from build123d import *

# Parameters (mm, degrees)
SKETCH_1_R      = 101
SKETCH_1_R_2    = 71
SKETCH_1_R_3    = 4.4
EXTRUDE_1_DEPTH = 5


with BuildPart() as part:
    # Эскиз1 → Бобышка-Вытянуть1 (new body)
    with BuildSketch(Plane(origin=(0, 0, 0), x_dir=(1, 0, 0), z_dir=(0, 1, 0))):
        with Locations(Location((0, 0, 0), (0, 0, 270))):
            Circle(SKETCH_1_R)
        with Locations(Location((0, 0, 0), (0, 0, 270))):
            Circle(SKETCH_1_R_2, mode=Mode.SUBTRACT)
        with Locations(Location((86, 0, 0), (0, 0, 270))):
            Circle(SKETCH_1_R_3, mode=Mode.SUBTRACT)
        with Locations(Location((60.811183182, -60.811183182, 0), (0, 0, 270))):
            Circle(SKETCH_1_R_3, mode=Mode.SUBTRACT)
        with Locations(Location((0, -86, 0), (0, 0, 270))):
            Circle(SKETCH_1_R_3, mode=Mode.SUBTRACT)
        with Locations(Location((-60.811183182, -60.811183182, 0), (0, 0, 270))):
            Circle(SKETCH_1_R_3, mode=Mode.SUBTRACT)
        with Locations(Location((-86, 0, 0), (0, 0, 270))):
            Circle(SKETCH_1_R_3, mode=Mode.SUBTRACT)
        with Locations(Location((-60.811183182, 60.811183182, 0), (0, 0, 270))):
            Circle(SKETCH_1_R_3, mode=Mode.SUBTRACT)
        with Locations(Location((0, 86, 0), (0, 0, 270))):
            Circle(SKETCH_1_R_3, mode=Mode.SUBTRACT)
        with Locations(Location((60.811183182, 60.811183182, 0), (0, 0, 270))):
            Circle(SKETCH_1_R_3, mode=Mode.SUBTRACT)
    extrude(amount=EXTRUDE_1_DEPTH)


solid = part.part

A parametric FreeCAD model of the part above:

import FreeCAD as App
import Part
import Sketcher
from FreeCAD import Vector
Q = App.Units.Quantity

doc = App.newDocument("Part")
body = doc.addObject("PartDesign::Body", "Body")

# Sketch on XZ plane
sketch1 = body.newObject("Sketcher::SketchObject", "Sketch")
sketch1.AttachmentSupport = (doc.getObject("XZ_Plane"), [""])
sketch1.MapMode = "FlatFace"
sketch1.addGeometry(Part.Circle(Vector(0, 0, 0), Vector(0, 0, 1), 101), False)
sketch1.addGeometry(Part.Circle(Vector(-60.811183, -60.811183, 0), Vector(0, 0, 1), 4.4), False)
sketch1.addGeometry(Part.Circle(Vector(0, -86, 0), Vector(0, 0, 1), 4.4), False)
sketch1.addGeometry(Part.Circle(Vector(-86, 0, 0), Vector(0, 0, 1), 4.4), False)
sketch1.addGeometry(Part.Circle(Vector(-60.811183, 60.811183, 0), Vector(0, 0, 1), 4.4), False)
sketch1.addGeometry(Part.Circle(Vector(60.811183, -60.811183, 0), Vector(0, 0, 1), 4.4), False)
sketch1.addGeometry(Part.Circle(Vector(86, 0, 0), Vector(0, 0, 1), 4.4), False)
sketch1.addGeometry(Part.Circle(Vector(0, 0, 0), Vector(0, 0, 1), 71), False)
sketch1.addGeometry(Part.Circle(Vector(0, 86, 0), Vector(0, 0, 1), 4.4), False)
sketch1.addGeometry(Part.Circle(Vector(60.811183, 60.811183, 0), Vector(0, 0, 1), 4.4), False)
sketch1.addConstraint(Sketcher.Constraint("Coincident", 0, 3, -1, 1))
sketch1.addConstraint(Sketcher.Constraint("Coincident", 7, 3, -1, 1))
sketch1.addConstraint(Sketcher.Constraint("Equal", 1, 2))
sketch1.addConstraint(Sketcher.Constraint("Equal", 2, 3))
sketch1.addConstraint(Sketcher.Constraint("Equal", 3, 4))
sketch1.addConstraint(Sketcher.Constraint("Equal", 4, 5))
sketch1.addConstraint(Sketcher.Constraint("Equal", 5, 6))
sketch1.addConstraint(Sketcher.Constraint("Equal", 6, 8))
sketch1.addConstraint(Sketcher.Constraint("Equal", 8, 9))
sketch1.addConstraint(Sketcher.Constraint("Symmetric", 4, 3, 5, 3, -1, 1))
sketch1.addConstraint(Sketcher.Constraint("Symmetric", 3, 3, 6, 3, -1, 1))
sketch1.addConstraint(Sketcher.Constraint("Symmetric", 2, 3, 8, 3, -1, 1))
sketch1.addConstraint(Sketcher.Constraint("Symmetric", 1, 3, 9, 3, -1, 1))
sketch1.addConstraint(Sketcher.Constraint("Symmetric", 1, 3, 5, 3, -2))
sketch1.addConstraint(Sketcher.Constraint("PointOnObject", 2, 3, -2))
sketch1.addConstraint(Sketcher.Constraint("PointOnObject", 3, 3, -1))
sketch1.addConstraint(Sketcher.Constraint("Diameter", 0, Q("202 mm")))
sketch1.addConstraint(Sketcher.Constraint("Diameter", 7, Q("142 mm")))
sketch1.addConstraint(Sketcher.Constraint("Diameter", 1, Q("8.8 mm")))
sketch1.addConstraint(Sketcher.Constraint("DistanceY", 2, 3, -1, 1, Q("86 mm")))
sketch1.addConstraint(Sketcher.Constraint("DistanceX", 3, 3, -1, 1, Q("86 mm")))
sketch1.addConstraint(Sketcher.Constraint("DistanceX", 1, 3, -1, 1, Q("60.811183 mm")))
sketch1.addConstraint(Sketcher.Constraint("DistanceY", 1, 3, -1, 1, Q("60.811183 mm")))
pad1 = body.newObject("PartDesign::Pad", "Pad")
pad1.Profile = sketch1
pad1.Length = 5
pad1.Reversed = True

doc.recompute()
